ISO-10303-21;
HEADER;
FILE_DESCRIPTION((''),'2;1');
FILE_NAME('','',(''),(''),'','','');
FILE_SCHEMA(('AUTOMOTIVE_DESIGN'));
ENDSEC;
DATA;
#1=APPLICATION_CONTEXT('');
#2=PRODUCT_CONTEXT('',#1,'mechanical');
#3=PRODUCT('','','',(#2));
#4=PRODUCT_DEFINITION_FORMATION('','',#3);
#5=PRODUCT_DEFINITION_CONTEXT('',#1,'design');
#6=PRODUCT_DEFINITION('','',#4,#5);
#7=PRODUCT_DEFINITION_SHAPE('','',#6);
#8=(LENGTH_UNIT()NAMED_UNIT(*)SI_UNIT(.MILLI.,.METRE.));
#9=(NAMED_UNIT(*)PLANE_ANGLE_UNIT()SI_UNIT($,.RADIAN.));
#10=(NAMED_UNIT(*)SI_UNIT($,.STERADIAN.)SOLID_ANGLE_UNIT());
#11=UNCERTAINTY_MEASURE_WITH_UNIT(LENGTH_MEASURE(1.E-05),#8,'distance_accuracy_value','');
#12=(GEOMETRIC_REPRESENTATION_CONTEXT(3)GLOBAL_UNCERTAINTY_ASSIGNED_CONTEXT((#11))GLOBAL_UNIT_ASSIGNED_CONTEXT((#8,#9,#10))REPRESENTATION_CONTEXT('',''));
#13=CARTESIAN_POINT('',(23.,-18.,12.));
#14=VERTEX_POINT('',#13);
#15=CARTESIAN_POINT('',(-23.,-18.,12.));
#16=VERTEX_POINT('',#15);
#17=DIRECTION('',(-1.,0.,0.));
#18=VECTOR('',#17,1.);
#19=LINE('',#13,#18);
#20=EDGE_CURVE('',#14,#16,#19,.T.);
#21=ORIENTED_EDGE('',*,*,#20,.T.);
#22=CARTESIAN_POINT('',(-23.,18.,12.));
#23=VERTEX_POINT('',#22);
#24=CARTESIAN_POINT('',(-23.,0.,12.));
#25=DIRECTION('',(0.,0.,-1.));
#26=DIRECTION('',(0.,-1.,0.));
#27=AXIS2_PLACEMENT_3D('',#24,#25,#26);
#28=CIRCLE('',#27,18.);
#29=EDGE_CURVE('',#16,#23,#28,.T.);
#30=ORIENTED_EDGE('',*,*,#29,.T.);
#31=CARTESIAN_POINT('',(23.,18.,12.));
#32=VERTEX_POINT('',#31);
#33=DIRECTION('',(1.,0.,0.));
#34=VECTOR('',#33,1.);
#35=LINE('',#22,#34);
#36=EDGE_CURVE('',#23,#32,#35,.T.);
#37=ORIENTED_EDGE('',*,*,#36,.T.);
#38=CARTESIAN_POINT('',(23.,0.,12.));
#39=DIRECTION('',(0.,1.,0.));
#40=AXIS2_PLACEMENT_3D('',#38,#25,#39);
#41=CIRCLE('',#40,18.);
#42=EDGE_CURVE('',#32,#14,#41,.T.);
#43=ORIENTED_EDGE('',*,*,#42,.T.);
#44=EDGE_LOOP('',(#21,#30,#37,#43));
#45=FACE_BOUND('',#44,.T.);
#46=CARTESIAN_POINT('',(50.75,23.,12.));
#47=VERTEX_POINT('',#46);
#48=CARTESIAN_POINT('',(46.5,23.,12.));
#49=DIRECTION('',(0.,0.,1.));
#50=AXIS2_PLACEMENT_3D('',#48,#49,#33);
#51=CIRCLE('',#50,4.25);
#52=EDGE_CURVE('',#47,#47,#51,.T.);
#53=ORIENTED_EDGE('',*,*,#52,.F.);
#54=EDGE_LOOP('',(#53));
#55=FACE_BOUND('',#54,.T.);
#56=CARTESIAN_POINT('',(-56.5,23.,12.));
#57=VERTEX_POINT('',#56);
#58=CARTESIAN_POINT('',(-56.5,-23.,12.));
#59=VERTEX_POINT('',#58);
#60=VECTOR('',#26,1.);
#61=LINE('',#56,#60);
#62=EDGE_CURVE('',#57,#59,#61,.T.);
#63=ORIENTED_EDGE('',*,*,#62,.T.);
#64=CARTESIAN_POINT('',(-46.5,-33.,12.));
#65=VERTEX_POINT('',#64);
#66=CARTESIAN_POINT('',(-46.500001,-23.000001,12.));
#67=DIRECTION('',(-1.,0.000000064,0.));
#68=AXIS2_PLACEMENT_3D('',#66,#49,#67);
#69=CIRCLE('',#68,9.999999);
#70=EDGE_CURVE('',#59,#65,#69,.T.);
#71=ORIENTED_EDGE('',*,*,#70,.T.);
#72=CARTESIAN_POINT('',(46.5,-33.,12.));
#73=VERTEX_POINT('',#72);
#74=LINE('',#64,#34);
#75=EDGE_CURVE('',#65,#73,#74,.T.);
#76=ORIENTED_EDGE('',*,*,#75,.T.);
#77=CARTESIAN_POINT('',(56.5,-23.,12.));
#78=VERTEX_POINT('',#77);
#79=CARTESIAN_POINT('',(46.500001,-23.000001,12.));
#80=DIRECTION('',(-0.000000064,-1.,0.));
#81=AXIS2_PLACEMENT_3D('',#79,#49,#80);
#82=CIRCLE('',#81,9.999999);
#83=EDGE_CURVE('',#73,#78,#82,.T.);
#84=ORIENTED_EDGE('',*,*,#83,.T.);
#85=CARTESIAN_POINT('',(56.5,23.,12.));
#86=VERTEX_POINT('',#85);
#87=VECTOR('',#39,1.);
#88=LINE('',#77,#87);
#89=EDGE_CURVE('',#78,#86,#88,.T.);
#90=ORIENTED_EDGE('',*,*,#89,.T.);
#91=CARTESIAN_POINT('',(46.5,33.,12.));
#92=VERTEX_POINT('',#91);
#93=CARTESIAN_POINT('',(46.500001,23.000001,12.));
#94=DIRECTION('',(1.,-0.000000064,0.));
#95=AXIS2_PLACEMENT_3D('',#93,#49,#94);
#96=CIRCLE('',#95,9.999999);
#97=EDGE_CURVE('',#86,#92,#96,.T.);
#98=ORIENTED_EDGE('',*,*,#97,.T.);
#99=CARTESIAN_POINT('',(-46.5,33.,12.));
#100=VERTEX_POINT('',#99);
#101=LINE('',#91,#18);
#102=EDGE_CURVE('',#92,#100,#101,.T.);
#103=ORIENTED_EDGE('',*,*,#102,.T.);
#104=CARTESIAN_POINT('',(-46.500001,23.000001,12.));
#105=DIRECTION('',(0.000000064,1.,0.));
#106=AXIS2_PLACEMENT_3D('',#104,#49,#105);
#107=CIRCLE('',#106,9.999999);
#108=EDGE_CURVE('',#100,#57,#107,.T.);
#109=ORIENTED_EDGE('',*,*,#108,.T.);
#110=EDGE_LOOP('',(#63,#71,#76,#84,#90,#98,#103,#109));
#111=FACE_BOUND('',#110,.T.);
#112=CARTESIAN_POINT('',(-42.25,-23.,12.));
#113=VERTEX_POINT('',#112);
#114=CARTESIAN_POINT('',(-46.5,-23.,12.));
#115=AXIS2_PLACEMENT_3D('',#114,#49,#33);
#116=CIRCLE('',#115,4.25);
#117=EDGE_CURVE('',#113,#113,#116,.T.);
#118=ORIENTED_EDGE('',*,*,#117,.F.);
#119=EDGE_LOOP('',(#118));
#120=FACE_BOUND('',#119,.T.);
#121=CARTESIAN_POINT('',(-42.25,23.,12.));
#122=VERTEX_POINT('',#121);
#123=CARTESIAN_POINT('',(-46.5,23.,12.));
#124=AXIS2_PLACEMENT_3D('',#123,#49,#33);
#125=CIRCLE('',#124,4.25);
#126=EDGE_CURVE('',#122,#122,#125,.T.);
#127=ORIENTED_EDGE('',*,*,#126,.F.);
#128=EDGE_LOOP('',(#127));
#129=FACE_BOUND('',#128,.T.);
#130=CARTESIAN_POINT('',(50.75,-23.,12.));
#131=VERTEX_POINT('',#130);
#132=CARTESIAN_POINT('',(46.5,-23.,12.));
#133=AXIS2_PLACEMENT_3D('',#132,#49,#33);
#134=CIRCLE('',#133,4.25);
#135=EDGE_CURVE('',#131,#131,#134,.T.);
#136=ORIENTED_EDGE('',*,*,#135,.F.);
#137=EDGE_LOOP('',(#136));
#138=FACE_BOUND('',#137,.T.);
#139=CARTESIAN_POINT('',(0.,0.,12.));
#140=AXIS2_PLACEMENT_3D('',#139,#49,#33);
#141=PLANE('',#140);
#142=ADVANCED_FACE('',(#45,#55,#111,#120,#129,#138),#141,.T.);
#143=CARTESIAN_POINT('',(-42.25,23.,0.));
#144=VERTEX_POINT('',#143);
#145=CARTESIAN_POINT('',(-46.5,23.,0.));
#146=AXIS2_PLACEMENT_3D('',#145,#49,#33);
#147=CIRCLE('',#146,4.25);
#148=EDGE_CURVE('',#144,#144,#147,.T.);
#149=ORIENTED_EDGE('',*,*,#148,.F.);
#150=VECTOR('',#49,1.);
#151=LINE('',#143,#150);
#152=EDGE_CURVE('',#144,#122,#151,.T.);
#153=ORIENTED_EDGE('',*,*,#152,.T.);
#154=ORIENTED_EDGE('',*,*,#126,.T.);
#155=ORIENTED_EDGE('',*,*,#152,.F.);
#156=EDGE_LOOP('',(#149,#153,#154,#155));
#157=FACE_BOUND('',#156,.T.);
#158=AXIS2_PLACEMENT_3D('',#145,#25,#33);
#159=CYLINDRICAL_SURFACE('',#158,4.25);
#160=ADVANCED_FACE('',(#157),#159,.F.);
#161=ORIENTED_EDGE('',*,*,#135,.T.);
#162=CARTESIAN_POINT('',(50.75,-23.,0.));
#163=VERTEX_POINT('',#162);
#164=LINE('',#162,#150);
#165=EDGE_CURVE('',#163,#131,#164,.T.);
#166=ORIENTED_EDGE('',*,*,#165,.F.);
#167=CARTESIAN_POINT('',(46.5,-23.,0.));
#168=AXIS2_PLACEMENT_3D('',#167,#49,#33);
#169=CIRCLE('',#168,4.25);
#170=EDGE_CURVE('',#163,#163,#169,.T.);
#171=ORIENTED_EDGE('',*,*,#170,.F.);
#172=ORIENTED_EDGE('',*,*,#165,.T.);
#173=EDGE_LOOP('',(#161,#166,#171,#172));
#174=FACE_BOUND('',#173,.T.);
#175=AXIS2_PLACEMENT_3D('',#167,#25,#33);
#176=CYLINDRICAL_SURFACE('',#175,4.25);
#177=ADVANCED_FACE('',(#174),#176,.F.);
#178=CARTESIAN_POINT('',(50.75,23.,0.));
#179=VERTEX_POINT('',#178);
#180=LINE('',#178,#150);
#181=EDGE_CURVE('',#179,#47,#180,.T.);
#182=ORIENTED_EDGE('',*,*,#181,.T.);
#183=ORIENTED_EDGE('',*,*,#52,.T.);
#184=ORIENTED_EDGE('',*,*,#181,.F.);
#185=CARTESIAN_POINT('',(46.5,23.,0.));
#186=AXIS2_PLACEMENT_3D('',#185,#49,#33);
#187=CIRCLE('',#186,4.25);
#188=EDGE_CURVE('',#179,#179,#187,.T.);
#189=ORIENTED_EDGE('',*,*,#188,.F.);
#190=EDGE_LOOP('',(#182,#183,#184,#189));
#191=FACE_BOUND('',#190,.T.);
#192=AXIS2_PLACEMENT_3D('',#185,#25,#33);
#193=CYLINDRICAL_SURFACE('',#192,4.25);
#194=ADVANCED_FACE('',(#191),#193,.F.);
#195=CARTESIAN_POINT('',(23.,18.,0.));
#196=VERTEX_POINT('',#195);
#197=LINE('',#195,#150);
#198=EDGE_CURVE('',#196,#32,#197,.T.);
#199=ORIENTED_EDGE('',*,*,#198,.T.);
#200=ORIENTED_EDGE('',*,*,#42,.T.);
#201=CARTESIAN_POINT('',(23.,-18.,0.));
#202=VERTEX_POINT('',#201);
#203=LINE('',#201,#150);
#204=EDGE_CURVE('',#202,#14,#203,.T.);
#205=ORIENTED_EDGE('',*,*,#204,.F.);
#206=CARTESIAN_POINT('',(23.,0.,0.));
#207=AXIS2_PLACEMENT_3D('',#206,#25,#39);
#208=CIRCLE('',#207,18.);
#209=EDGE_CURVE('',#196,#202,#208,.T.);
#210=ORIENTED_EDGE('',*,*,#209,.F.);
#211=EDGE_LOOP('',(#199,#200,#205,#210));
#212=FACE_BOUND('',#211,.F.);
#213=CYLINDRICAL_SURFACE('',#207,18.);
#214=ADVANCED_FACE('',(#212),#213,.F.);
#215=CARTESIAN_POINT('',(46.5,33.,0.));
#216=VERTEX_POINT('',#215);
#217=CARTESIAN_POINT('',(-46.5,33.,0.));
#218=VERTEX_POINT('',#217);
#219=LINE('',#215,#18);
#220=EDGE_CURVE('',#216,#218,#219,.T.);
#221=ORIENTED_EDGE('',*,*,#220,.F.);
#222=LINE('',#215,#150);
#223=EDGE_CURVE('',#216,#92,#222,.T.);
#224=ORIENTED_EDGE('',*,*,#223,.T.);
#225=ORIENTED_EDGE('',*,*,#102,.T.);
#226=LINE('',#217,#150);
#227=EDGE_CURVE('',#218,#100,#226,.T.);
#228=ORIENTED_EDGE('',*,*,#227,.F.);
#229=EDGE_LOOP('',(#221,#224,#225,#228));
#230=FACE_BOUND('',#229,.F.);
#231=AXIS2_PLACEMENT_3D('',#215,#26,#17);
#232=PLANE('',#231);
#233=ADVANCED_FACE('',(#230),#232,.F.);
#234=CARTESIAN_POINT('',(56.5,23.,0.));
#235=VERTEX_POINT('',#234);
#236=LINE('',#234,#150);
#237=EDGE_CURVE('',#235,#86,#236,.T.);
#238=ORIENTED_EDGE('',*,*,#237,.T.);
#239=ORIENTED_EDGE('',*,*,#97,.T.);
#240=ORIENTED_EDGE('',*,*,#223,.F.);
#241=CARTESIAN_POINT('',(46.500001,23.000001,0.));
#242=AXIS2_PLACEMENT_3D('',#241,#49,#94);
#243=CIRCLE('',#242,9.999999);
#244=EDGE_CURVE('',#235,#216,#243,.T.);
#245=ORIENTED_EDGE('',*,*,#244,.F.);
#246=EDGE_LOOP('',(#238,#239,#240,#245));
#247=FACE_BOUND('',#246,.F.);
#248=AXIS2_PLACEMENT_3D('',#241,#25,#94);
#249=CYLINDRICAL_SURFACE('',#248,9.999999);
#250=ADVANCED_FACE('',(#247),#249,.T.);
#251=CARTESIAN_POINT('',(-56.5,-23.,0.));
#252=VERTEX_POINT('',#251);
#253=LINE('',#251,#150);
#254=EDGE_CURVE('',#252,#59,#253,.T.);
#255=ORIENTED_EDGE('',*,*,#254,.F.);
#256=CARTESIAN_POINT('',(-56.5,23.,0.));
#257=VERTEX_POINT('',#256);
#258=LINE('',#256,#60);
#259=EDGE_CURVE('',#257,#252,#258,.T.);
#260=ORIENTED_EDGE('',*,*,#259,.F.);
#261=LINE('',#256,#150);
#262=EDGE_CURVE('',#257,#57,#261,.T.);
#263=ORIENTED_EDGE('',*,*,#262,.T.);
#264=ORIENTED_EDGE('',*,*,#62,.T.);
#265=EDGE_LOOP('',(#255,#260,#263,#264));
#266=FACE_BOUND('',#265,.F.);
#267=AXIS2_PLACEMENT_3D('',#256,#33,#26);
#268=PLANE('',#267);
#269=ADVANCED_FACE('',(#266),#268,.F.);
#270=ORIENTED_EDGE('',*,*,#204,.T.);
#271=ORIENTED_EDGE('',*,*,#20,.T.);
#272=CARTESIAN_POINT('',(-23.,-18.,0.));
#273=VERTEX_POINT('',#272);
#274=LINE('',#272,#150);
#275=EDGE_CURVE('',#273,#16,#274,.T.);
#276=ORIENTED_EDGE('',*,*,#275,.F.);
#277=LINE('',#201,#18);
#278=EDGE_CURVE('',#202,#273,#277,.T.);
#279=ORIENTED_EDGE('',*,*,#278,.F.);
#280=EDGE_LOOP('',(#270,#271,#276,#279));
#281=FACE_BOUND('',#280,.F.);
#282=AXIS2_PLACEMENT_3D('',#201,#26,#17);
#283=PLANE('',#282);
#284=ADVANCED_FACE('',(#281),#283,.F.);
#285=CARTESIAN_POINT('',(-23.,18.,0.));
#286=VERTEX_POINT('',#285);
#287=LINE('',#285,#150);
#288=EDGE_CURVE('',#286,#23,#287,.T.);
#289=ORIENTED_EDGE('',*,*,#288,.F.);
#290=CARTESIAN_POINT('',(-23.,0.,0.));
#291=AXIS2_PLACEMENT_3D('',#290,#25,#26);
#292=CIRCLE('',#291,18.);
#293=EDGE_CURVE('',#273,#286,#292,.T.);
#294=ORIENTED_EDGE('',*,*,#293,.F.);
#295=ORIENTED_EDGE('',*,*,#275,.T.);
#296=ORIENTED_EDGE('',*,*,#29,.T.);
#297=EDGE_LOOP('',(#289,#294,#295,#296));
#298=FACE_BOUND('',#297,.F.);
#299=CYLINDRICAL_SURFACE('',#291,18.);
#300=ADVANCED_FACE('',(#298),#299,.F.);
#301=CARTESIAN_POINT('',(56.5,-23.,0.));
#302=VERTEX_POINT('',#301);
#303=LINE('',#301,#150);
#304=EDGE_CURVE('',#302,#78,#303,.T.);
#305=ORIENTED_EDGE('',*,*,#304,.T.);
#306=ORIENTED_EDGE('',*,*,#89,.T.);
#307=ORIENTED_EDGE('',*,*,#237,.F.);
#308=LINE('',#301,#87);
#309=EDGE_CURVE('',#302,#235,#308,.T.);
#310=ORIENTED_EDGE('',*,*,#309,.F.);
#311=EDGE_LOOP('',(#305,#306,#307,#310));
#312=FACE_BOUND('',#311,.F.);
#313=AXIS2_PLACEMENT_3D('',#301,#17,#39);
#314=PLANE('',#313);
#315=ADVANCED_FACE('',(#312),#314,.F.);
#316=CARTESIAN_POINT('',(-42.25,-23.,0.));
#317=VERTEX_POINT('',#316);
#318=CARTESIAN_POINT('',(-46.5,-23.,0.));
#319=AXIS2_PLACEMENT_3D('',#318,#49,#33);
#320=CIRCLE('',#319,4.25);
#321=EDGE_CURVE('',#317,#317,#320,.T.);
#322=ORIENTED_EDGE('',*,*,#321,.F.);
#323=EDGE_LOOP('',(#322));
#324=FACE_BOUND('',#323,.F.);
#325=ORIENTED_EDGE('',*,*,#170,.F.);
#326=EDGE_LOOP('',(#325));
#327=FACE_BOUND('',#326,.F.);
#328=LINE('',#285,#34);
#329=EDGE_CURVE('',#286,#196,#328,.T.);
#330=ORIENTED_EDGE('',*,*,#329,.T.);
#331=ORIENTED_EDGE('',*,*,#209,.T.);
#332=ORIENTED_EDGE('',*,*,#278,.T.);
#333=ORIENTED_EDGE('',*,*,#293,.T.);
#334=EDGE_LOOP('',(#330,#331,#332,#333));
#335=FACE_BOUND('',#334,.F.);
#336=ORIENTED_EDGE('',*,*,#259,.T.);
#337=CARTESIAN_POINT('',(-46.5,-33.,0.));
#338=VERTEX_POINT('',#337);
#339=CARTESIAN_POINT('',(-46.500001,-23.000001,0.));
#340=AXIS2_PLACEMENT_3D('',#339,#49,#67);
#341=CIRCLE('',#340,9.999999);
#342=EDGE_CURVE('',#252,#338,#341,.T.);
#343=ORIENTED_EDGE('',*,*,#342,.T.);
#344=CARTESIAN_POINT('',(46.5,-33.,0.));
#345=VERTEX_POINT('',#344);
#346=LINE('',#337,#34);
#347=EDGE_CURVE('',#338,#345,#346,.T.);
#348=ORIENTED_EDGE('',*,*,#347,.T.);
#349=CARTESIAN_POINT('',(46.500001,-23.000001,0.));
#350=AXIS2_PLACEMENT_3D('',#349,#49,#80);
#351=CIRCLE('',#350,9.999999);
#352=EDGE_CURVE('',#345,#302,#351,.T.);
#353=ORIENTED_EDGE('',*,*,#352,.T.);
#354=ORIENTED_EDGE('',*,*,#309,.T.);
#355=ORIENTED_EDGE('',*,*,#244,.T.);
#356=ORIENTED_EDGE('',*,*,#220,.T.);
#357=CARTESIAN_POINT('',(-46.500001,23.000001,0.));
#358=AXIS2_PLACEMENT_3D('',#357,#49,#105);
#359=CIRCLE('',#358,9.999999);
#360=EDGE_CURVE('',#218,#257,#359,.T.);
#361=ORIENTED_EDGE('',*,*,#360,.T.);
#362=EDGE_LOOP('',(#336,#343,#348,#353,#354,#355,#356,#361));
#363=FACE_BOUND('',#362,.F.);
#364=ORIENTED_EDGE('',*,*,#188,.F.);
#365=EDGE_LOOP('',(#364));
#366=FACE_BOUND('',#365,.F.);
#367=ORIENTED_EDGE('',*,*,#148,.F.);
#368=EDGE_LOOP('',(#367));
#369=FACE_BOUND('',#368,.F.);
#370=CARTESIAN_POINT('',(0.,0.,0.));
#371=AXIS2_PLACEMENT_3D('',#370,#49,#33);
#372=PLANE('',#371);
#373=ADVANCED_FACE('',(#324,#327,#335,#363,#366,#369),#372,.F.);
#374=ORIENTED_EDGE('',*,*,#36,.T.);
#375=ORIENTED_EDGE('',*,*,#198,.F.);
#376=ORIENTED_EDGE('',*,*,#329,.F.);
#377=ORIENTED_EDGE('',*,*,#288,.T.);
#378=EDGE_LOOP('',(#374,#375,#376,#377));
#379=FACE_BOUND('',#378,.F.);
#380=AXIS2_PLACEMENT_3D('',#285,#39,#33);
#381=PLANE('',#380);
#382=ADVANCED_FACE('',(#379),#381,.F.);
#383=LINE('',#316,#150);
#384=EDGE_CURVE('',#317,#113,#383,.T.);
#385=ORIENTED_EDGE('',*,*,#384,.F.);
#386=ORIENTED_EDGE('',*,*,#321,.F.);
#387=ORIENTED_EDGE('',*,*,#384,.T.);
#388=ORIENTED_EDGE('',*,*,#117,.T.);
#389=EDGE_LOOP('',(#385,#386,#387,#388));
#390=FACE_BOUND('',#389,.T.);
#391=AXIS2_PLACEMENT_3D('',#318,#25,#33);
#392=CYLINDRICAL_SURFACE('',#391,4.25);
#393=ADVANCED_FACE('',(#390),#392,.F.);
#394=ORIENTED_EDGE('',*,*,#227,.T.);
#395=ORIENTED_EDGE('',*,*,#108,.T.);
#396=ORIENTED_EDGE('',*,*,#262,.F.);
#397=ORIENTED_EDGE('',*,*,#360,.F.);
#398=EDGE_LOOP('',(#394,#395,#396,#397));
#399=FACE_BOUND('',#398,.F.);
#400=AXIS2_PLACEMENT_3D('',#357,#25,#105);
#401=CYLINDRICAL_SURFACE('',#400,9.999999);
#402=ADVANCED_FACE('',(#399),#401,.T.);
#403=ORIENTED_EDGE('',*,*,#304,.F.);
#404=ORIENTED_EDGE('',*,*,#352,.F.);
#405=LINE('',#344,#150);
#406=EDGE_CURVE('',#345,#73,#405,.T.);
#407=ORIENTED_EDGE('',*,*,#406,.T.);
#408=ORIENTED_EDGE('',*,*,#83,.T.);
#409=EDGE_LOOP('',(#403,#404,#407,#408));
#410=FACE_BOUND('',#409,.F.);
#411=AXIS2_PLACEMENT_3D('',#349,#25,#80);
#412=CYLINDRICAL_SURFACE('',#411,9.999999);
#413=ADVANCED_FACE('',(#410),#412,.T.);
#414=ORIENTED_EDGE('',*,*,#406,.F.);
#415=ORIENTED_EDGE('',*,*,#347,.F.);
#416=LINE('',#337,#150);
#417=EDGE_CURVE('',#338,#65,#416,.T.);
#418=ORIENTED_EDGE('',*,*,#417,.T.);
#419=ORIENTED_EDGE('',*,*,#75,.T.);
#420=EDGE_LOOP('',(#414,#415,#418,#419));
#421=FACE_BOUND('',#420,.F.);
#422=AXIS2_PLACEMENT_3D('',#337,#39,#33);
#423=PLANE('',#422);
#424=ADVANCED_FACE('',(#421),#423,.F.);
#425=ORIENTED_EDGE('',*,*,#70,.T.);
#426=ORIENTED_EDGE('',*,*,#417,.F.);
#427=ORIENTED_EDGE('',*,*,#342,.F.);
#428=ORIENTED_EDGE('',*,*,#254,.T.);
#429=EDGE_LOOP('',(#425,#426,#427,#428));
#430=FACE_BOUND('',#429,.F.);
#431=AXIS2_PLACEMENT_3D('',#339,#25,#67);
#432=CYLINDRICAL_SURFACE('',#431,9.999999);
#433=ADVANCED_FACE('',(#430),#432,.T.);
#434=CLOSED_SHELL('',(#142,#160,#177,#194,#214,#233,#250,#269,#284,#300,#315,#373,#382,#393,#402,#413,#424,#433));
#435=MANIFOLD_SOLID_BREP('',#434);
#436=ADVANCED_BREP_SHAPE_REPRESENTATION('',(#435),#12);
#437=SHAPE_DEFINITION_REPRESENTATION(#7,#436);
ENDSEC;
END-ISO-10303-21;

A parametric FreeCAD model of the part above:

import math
import FreeCAD as App
import Part
import Sketcher

V = App.Vector
Q = App.Units.Quantity

doc = App.newDocument("Part")
params = doc.addObject("Spreadsheet::Sheet", "Params")
for row, (alias, value) in enumerate([
    ("sketch1_radius", "9.999999 mm"),
    ("sketch1_radius2", "18 mm"),
    ("sketch1_diameter", "8.5 mm"),
    ("sketch1_width", "93 mm"),
    ("sketch1_width2", "46 mm"),
    ("pad1_length", "12 mm"),
], start=1):
    params.set(f"A{row}", alias)
    params.set(f"B{row}", "=" + value)
    params.setAlias(f"B{row}", alias)

body = doc.addObject("PartDesign::Body", "Body")

sketch1 = doc.addObject("Sketcher::SketchObject", "Sketch")
body.addObject(sketch1)
sketch1.AttachmentSupport = (doc.XY_Plane, [""])
sketch1.MapMode = "FlatFace"
sketch1.addGeometry([
    Part.LineSegment(V(46.5, 33, 0), V(-46.5, 33, 0)),
    Part.ArcOfCircle(Part.Circle(V(-46.5, 23, 0), V(0, 0, 1), 10), math.radians(90), math.radians(180)),
    Part.LineSegment(V(-56.5, 23, 0), V(-56.5, -23, 0)),
    Part.ArcOfCircle(Part.Circle(V(-46.5, -23, 0), V(0, 0, 1), 10), math.radians(180), math.radians(270)),
    Part.LineSegment(V(-46.5, -33, 0), V(46.5, -33, 0)),
    Part.ArcOfCircle(Part.Circle(V(46.5, -23, 0), V(0, 0, 1), 10), math.radians(-90), math.radians(0)),
    Part.LineSegment(V(56.5, -23, 0), V(56.5, 23, 0)),
    Part.ArcOfCircle(Part.Circle(V(46.5, 23, 0), V(0, 0, 1), 10), math.radians(0), math.radians(90)),
    Part.Circle(V(-46.5, -23, 0), V(0, 0, 1), 4.2),
    Part.Circle(V(46.5, -23, 0), V(0, 0, 1), 4.2),
    Part.Circle(V(-46.5, 23, 0), V(0, 0, 1), 4.2),
    Part.ArcOfCircle(Part.Circle(V(23, 0, 0), V(0, 0, 1), 18), math.radians(-90), math.radians(90)),
    Part.LineSegment(V(23, -18, 0), V(-23, -18, 0)),
    Part.ArcOfCircle(Part.Circle(V(-23, 0, 0), V(0, 0, 1), 18), math.radians(90), math.radians(270)),
    Part.LineSegment(V(-23, 18, 0), V(23, 18, 0)),
    Part.Circle(V(46.5, 23, 0), V(0, 0, 1), 4.2),
], False)
sketch1.addConstraint([
    Sketcher.Constraint("Tangent", 0, 2, 1, 1),
    Sketcher.Constraint("Tangent", 1, 2, 2, 1),
    Sketcher.Constraint("Tangent", 2, 2, 3, 1),
    Sketcher.Constraint("Tangent", 3, 2, 4, 1),
    Sketcher.Constraint("Tangent", 4, 2, 5, 1),
    Sketcher.Constraint("Tangent", 5, 2, 6, 1),
    Sketcher.Constraint("Tangent", 6, 2, 7, 1),
    Sketcher.Constraint("Tangent", 7, 2, 0, 1),
    Sketcher.Constraint("Tangent", 11, 1, 12, 1),
    Sketcher.Constraint("Tangent", 12, 2, 13, 2),
    Sketcher.Constraint("Tangent", 13, 1, 14, 1),
    Sketcher.Constraint("Tangent", 14, 2, 11, 2),
    Sketcher.Constraint("Horizontal", 0),
    Sketcher.Constraint("Vertical", 2),
    Sketcher.Constraint("Horizontal", 4),
    Sketcher.Constraint("Vertical", 6),
    Sketcher.Constraint("Horizontal", 12),
    Sketcher.Constraint("Horizontal", 14),
    Sketcher.Constraint("Coincident", 8, 3, 3, 3),
    Sketcher.Constraint("Coincident", 9, 3, 5, 3),
    Sketcher.Constraint("Coincident", 10, 3, 1, 3),
    Sketcher.Constraint("Coincident", 15, 3, 7, 3),
    Sketcher.Constraint("Equal", 1, 3),
    Sketcher.Constraint("Equal", 3, 5),
    Sketcher.Constraint("Equal", 5, 7),
    Sketcher.Constraint("Equal", 8, 9),
    Sketcher.Constraint("Equal", 9, 10),
    Sketcher.Constraint("Equal", 10, 15),
    Sketcher.Constraint("Symmetric", 1, 3, 5, 3, -1, 1),
    Sketcher.Constraint("Symmetric", 11, 3, 13, 3, -1, 1),
    Sketcher.Constraint("Equal", 14, 2),
    Sketcher.Constraint("Radius", 1, Q("9.999999 mm")),
    Sketcher.Constraint("Radius", 11, Q("18 mm")),
    Sketcher.Constraint("Diameter", 8, Q("8.5 mm")),
    Sketcher.Constraint("DistanceX", 0, 2, 0, 1, Q("93 mm")),
    Sketcher.Constraint("DistanceX", 12, 2, 12, 1, Q("46 mm")),
])
sketch1.setExpression("Constraints[31]", "Params.sketch1_radius")
sketch1.setExpression("Constraints[32]", "Params.sketch1_radius2")
sketch1.setExpression("Constraints[33]", "Params.sketch1_diameter")
sketch1.setExpression("Constraints[34]", "Params.sketch1_width")
sketch1.setExpression("Constraints[35]", "Params.sketch1_width2")
pad1 = doc.addObject("PartDesign::Pad", "Pad")
body.addObject(pad1)
pad1.Profile = sketch1
pad1.setExpression("Length", "Params.pad1_length")

doc.recompute()
